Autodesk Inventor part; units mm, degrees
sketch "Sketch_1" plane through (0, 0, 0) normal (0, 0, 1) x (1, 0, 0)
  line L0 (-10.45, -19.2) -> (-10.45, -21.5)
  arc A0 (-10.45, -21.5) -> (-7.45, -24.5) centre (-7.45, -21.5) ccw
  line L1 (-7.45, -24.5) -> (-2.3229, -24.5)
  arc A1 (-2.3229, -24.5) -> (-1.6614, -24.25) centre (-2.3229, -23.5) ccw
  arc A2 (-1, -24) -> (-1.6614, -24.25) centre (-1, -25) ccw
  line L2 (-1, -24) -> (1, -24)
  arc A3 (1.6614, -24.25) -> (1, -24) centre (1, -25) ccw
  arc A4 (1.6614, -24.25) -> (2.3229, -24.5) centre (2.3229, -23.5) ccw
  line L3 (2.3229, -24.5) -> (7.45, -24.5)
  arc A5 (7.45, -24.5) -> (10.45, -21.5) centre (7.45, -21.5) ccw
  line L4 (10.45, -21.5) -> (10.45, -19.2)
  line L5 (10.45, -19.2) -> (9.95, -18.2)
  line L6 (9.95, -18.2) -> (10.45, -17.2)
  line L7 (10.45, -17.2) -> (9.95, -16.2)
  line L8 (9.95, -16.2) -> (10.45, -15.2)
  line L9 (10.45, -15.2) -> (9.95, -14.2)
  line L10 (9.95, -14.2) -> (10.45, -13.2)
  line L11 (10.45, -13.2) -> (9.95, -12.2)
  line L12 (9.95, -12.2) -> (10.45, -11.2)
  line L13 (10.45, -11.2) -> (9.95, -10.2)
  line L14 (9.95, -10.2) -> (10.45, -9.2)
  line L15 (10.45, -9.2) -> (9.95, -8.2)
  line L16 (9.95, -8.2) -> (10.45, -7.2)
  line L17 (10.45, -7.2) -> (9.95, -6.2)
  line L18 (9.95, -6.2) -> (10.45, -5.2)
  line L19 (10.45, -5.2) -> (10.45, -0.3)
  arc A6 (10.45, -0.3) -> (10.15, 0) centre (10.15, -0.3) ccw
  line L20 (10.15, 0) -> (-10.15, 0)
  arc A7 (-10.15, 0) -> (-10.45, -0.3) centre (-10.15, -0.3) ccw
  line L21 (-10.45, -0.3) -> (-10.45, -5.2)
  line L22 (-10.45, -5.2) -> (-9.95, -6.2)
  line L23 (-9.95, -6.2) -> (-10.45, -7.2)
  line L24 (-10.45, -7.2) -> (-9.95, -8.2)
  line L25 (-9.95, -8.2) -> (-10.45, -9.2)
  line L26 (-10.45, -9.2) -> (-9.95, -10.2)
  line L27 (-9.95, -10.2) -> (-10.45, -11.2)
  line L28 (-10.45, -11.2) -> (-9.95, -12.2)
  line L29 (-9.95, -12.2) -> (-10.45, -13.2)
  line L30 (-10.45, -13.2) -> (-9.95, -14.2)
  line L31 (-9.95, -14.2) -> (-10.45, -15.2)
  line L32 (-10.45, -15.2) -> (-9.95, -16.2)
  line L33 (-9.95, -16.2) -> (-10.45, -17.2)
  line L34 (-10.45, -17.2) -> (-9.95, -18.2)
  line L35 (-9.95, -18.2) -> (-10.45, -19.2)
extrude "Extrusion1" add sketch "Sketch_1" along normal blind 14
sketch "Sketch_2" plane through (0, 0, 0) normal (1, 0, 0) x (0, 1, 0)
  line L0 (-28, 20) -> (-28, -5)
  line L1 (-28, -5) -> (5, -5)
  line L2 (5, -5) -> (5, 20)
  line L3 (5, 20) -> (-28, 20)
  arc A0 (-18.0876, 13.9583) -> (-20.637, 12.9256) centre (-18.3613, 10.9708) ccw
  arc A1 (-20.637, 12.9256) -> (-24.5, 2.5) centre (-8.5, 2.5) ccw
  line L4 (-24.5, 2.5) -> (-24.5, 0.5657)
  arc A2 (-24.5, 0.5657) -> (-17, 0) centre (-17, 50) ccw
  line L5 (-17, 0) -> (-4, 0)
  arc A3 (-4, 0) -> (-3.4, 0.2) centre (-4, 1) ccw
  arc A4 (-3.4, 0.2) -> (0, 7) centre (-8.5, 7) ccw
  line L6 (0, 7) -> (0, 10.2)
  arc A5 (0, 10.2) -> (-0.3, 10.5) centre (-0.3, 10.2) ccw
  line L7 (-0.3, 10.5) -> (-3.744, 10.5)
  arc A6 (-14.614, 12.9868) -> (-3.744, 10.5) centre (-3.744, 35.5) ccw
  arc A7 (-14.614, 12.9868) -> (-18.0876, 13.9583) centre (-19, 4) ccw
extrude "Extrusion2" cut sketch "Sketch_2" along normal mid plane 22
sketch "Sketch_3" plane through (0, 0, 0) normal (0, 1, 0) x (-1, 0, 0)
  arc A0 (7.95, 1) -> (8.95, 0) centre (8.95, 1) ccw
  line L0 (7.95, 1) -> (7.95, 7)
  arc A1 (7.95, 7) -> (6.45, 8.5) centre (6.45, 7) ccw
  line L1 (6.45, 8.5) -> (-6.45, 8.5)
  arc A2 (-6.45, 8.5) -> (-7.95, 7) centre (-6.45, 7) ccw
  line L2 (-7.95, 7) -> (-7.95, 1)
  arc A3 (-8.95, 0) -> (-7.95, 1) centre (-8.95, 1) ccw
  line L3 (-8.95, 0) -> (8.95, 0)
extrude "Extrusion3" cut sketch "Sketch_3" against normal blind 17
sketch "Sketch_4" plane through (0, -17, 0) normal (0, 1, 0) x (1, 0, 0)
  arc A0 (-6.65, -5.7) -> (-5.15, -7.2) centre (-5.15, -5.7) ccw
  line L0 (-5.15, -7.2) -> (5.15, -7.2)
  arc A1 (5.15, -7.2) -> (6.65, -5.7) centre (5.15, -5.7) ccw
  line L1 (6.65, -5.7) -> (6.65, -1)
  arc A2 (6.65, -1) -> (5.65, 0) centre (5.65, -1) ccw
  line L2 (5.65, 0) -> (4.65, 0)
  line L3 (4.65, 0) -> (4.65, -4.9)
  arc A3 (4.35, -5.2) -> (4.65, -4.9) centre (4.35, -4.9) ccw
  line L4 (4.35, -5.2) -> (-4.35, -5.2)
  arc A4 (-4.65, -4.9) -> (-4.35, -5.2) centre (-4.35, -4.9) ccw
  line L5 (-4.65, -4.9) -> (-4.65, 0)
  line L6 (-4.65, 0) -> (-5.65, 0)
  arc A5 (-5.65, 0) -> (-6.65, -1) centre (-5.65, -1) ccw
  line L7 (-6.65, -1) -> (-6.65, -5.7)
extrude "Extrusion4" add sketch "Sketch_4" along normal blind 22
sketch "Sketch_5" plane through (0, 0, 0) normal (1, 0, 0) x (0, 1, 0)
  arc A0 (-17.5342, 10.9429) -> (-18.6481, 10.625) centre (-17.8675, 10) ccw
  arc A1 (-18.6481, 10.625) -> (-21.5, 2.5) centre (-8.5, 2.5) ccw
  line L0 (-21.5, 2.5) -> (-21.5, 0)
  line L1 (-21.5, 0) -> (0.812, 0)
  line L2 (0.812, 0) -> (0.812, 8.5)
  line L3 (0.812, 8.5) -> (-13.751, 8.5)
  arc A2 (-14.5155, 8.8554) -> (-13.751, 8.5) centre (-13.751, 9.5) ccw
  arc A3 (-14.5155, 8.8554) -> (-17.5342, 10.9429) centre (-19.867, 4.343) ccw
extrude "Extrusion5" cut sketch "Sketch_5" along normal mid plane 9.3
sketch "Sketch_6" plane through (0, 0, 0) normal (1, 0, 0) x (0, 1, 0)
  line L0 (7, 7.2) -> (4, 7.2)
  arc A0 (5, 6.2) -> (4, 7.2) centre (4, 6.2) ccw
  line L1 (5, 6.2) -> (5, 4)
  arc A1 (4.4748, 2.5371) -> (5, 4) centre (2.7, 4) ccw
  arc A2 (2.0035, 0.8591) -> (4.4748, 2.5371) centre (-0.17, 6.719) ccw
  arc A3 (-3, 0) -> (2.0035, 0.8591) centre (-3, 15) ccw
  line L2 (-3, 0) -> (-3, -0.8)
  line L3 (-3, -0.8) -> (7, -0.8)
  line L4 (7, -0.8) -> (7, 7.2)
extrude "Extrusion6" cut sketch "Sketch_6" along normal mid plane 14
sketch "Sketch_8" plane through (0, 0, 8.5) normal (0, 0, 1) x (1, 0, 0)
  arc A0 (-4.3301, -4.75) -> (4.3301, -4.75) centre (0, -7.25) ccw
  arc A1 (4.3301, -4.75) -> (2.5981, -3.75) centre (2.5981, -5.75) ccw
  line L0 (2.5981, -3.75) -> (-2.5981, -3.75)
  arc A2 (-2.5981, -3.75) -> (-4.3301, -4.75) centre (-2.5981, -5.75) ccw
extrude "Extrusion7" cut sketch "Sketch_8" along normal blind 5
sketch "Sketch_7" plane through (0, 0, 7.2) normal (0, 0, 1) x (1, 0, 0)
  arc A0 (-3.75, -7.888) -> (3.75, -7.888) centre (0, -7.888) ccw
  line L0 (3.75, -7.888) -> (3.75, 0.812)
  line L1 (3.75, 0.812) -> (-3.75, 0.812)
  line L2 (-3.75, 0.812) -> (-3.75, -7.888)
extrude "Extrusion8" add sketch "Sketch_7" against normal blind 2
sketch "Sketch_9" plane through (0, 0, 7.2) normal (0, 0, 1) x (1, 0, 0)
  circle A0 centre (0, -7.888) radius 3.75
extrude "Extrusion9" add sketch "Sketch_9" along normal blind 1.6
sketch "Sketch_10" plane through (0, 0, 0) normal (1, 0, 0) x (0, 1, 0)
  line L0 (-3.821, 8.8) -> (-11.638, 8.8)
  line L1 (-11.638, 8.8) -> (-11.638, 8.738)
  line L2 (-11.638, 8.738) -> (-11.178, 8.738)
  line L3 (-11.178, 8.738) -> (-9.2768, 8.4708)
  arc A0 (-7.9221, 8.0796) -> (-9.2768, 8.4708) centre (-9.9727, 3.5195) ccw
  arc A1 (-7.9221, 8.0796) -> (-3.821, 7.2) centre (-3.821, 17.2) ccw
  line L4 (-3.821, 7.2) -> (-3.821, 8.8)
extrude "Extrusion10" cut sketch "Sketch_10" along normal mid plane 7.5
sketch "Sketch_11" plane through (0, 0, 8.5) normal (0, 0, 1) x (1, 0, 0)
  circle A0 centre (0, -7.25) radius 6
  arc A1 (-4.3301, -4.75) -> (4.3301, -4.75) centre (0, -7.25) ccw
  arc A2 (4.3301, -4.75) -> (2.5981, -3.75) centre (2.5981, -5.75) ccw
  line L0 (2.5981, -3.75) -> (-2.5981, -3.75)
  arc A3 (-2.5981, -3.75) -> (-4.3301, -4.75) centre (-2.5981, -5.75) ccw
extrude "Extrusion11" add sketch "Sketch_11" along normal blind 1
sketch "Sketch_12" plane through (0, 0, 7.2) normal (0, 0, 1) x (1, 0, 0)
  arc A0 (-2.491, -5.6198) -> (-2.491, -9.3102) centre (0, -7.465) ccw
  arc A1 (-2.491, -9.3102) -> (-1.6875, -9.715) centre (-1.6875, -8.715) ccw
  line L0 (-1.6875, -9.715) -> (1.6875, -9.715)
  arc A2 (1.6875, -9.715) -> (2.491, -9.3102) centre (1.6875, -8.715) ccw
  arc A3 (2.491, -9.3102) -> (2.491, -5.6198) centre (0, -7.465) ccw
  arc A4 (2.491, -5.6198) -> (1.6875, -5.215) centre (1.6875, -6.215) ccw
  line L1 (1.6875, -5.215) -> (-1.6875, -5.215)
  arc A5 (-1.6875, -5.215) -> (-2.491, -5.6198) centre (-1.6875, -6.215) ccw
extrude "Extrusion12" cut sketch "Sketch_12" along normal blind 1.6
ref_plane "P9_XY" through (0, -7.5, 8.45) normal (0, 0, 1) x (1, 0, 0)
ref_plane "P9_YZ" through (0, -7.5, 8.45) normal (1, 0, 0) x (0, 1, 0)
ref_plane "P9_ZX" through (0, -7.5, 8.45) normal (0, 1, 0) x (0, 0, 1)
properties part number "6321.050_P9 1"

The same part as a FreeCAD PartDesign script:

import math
import FreeCAD as App
import Part
import Sketcher

V = App.Vector
Q = App.Units.Quantity


def add_polygon(sketch, points):
    """Adds a closed chain of lines whose ends are joined by coincident constraints."""
    first, n = sketch.GeometryCount, len(points)
    for a, b in zip(points, points[1:] + points[:1]):
        sketch.addGeometry(Part.LineSegment(App.Vector(*a, 0), App.Vector(*b, 0)), False)
    for i in range(n):
        sketch.addConstraint(Sketcher.Constraint("Coincident", first + i, 2, first + (i + 1) % n, 1))

doc = App.newDocument("Part")
params = doc.addObject("Spreadsheet::Sheet", "Params")
for row, (alias, value) in enumerate([
    ("sketch1_radius", "3 mm"),
    ("sketch1_radius2", "1 mm"),
    ("sketch1_radius3", "0.3 mm"),
    ("sketch1_width", "2 mm"),
    ("sketch1_width2", "20.3 mm"),
    ("pad1_length", "14 mm"),
    ("sketch2_radius", "3 mm"),
    ("sketch2_radius2", "10 mm"),
    ("sketch2_radius3", "25 mm"),
    ("sketch2_radius4", "1 mm"),
    ("sketch2_radius5", "50 mm"),
    ("pocket1_length", "22 mm"),
    ("sketch3_radius", "1 mm"),
    ("sketch3_radius2", "1.5 mm"),
    ("sketch3_height", "6 mm"),
    ("sketch3_width", "12.9 mm"),
    ("pocket2_length", "17 mm"),
    ("sketch4_radius", "1 mm"),
    ("sketch4_radius2", "1.5 mm"),
    ("sketch4_radius3", "0.3 mm"),
    ("sketch4_width", "1 mm"),
    ("sketch4_width2", "10.3 mm"),
    ("pad2_length", "22 mm"),
    ("sketch5_radius", "7 mm"),
    ("sketch5_radius2", "1 mm"),
    ("sketch5_radius3", "13 mm"),
    ("sketch5_height", "2.5 mm"),
    ("sketch5_height2", "8.5 mm"),
    ("pocket3_length", "9.3 mm"),
    ("sketch6_radius", "1 mm"),
    ("sketch6_radius2", "15 mm"),
    ("sketch6_radius3", "2.3 mm"),
    ("sketch6_width", "3 mm"),
    ("sketch6_width2", "10 mm"),
    ("pocket4_length", "14 mm"),
    ("sketch7_radius", "2 mm"),
    ("sketch7_radius2", "5 mm"),
    ("sketch7_height", "1 mm"),
    ("pocket5_length", "5 mm"),
    ("sketch8_radius", "3.75 mm"),
    ("sketch8_height", "8.7 mm"),
    ("pad3_length", "2 mm"),
    ("sketch9_diameter", "7.5 mm"),
    ("pad4_length", "1.6 mm"),
    ("sketch10_radius", "5 mm"),
    ("sketch10_radius2", "10 mm"),
    ("sketch10_height", "1.6 mm"),
    ("sketch10_width", "0.46 mm"),
    ("sketch10_length", "1.92 mm"),
    ("pocket6_length", "7.5 mm"),
    ("sketch11_diameter", "12 mm"),
    ("sketch11_radius", "5 mm"),
    ("sketch11_radius2", "2 mm"),
    ("pad5_length", "1 mm"),
    ("sketch12_radius", "1 mm"),
    ("sketch12_radius2", "3.1 mm"),
    ("pocket7_length", "1.6 mm"),
], start=1):
    params.set(f"A{row}", alias)
    params.set(f"B{row}", "=" + value)
    params.setAlias(f"B{row}", alias)

body = doc.addObject("PartDesign::Body", "Body")

# Sketch on XY plane
sketch1 = body.newObject("Sketcher::SketchObject", "Sketch")
sketch1.AttachmentSupport = (doc.getObject("XY_Plane"), [""])
sketch1.MapMode = "FlatFace"
sketch1.addGeometry([
    Part.LineSegment(V(-9.95, -18.2, 0), V(-10.45, -19.2, 0)),  # 0
    Part.LineSegment(V(-10.45, -19.2, 0), V(-10.45, -21.5, 0)),  # 1
    Part.ArcOfCircle(Part.Circle(V(-7.45, -21.5, 0), V(0, 0, 1), 3), math.radians(180), math.radians(270)),  # 2
    Part.LineSegment(V(-7.45, -24.5, 0), V(-2.32, -24.5, 0)),  # 3
    Part.ArcOfCircle(Part.Circle(V(-2.32, -23.5, 0), V(0, 0, 1), 1), math.radians(-90), math.radians(-49)),  # 4
    Part.ArcOfCircle(Part.Circle(V(-1, -25, 0), V(0, 0, 1), 1), math.radians(90), math.radians(131)),  # 5
    Part.LineSegment(V(-1, -24, 0), V(1, -24, 0)),  # 6
    Part.ArcOfCircle(Part.Circle(V(1, -25, 0), V(0, 0, 1), 1), math.radians(49), math.radians(90)),  # 7
    Part.ArcOfCircle(Part.Circle(V(2.32, -23.5, 0), V(0, 0, 1), 1), math.radians(-131), math.radians(-90)),  # 8
    Part.LineSegment(V(2.32, -24.5, 0), V(7.45, -24.5, 0)),  # 9
    Part.ArcOfCircle(Part.Circle(V(7.45, -21.5, 0), V(0, 0, 1), 3), math.radians(-90), math.radians(0)),  # 10
    Part.LineSegment(V(10.45, -21.5, 0), V(10.45, -19.2, 0)),  # 11
    Part.LineSegment(V(10.45, -19.2, 0), V(9.95, -18.2, 0)),  # 12
    Part.LineSegment(V(9.95, -18.2, 0), V(10.45, -17.2, 0)),  # 13
    Part.LineSegment(V(10.45, -17.2, 0), V(9.95, -16.2, 0)),  # 14
    Part.LineSegment(V(9.95, -16.2, 0), V(10.45, -15.2, 0)),  # 15
    Part.LineSegment(V(10.45, -15.2, 0), V(9.95, -14.2, 0)),  # 16
    Part.LineSegment(V(9.95, -14.2, 0), V(10.45, -13.2, 0)),  # 17
    Part.LineSegment(V(10.45, -13.2, 0), V(9.95, -12.2, 0)),  # 18
    Part.LineSegment(V(9.95, -12.2, 0), V(10.45, -11.2, 0)),  # 19
    Part.LineSegment(V(10.45, -11.2, 0), V(9.95, -10.2, 0)),  # 20
    Part.LineSegment(V(9.95, -10.2, 0), V(10.45, -9.2, 0)),  # 21
    Part.LineSegment(V(10.45, -9.2, 0), V(9.95, -8.2, 0)),  # 22
    Part.LineSegment(V(9.95, -8.2, 0), V(10.45, -7.2, 0)),  # 23
    Part.LineSegment(V(10.45, -7.2, 0), V(9.95, -6.2, 0)),  # 24
    Part.LineSegment(V(9.95, -6.2, 0), V(10.45, -5.2, 0)),  # 25
    Part.LineSegment(V(10.45, -5.2, 0), V(10.45, -0.3, 0)),  # 26
    Part.ArcOfCircle(Part.Circle(V(10.15, -0.3, 0), V(0, 0, 1), 0.3), math.radians(0), math.radians(90)),  # 27
    Part.LineSegment(V(10.15, 0, 0), V(-10.15, 0, 0)),  # 28
    Part.ArcOfCircle(Part.Circle(V(-10.15, -0.3, 0), V(0, 0, 1), 0.3), math.radians(90), math.radians(180)),  # 29
    Part.LineSegment(V(-10.45, -0.3, 0), V(-10.45, -5.2, 0)),  # 30
    Part.LineSegment(V(-10.45, -5.2, 0), V(-9.95, -6.2, 0)),  # 31
    Part.LineSegment(V(-9.95, -6.2, 0), V(-10.45, -7.2, 0)),  # 32
    Part.LineSegment(V(-10.45, -7.2, 0), V(-9.95, -8.2, 0)),  # 33
    Part.LineSegment(V(-9.95, -8.2, 0), V(-10.45, -9.2, 0)),  # 34
    Part.LineSegment(V(-10.45, -9.2, 0), V(-9.95, -10.2, 0)),  # 35
    Part.LineSegment(V(-9.95, -10.2, 0), V(-10.45, -11.2, 0)),  # 36
    Part.LineSegment(V(-10.45, -11.2, 0), V(-9.95, -12.2, 0)),  # 37
    Part.LineSegment(V(-9.95, -12.2, 0), V(-10.45, -13.2, 0)),  # 38
    Part.LineSegment(V(-10.45, -13.2, 0), V(-9.95, -14.2, 0)),  # 39
    Part.LineSegment(V(-9.95, -14.2, 0), V(-10.45, -15.2, 0)),  # 40
    Part.LineSegment(V(-10.45, -15.2, 0), V(-9.95, -16.2, 0)),  # 41
    Part.LineSegment(V(-9.95, -16.2, 0), V(-10.45, -17.2, 0)),  # 42
    Part.LineSegment(V(-10.45, -17.2, 0), V(-9.95, -18.2, 0)),  # 43
], False)
sketch1.addConstraint([
    Sketcher.Constraint("Coincident", 0, 2, 1, 1),
    Sketcher.Constraint("Tangent", 1, 2, 2, 1),
    Sketcher.Constraint("Tangent", 2, 2, 3, 1),
    Sketcher.Constraint("Tangent", 3, 2, 4, 1),
    Sketcher.Constraint("Tangent", 4, 2, 5, 2),
    Sketcher.Constraint("Tangent", 5, 1, 6, 1),
    Sketcher.Constraint("Tangent", 6, 2, 7, 2),
    Sketcher.Constraint("Tangent", 7, 1, 8, 1),
    Sketcher.Constraint("Tangent", 8, 2, 9, 1),
    Sketcher.Constraint("Tangent", 9, 2, 10, 1),
    Sketcher.Constraint("Tangent", 10, 2, 11, 1),
    Sketcher.Constraint("Coincident", 11, 2, 12, 1),
    Sketcher.Constraint("Coincident", 12, 2, 13, 1),
    Sketcher.Constraint("Coincident", 13, 2, 14, 1),
    Sketcher.Constraint("Coincident", 14, 2, 15, 1),
    Sketcher.Constraint("Coincident", 15, 2, 16, 1),
    Sketcher.Constraint("Coincident", 16, 2, 17, 1),
    Sketcher.Constraint("Coincident", 17, 2, 18, 1),
    Sketcher.Constraint("Coincident", 18, 2, 19, 1),
    Sketcher.Constraint("Coincident", 19, 2, 20, 1),
    Sketcher.Constraint("Coincident", 20, 2, 21, 1),
    Sketcher.Constraint("Coincident", 21, 2, 22, 1),
    Sketcher.Constraint("Coincident", 22, 2, 23, 1),
    Sketcher.Constraint("Coincident", 23, 2, 24, 1),
    Sketcher.Constraint("Coincident", 24, 2, 25, 1),
    Sketcher.Constraint("Coincident", 25, 2, 26, 1),
    Sketcher.Constraint("Tangent", 26, 2, 27, 1),
    Sketcher.Constraint("Tangent", 27, 2, 28, 1),
    Sketcher.Constraint("Tangent", 28, 2, 29, 1),
    Sketcher.Constraint("Tangent", 29, 2, 30, 1),
    Sketcher.Constraint("Coincident", 30, 2, 31, 1),
    Sketcher.Constraint("Coincident", 31, 2, 32, 1),
    Sketcher.Constraint("Coincident", 32, 2, 33, 1),
    Sketcher.Constraint("Coincident", 33, 2, 34, 1),
    Sketcher.Constraint("Coincident", 34, 2, 35, 1),
    Sketcher.Constraint("Coincident", 35, 2, 36, 1),
    Sketcher.Constraint("Coincident", 36, 2, 37, 1),
    Sketcher.Constraint("Coincident", 37, 2, 38, 1),
    Sketcher.Constraint("Coincident", 38, 2, 39, 1),
    Sketcher.Constraint("Coincident", 39, 2, 40, 1),
    Sketcher.Constraint("Coincident", 40, 2, 41, 1),
    Sketcher.Constraint("Coincident", 41, 2, 42, 1),
    Sketcher.Constraint("Coincident", 42, 2, 43, 1),
    Sketcher.Constraint("Coincident", 43, 2, 0, 1),
    Sketcher.Constraint("Vertical", 1),
    Sketcher.Constraint("Horizontal", 3),
    Sketcher.Constraint("Horizontal", 6),
    Sketcher.Constraint("Horizontal", 9),
    Sketcher.Constraint("Vertical", 11),
    Sketcher.Constraint("Vertical", 26),
    Sketcher.Constraint("Horizontal", 28),
    Sketcher.Constraint("Vertical", 30),
    Sketcher.Constraint("Equal", 4, 5),
    Sketcher.Constraint("Equal", 5, 7),
    Sketcher.Constraint("Equal", 7, 8),
    Sketcher.Constraint("Equal", 2, 10),
    Sketcher.Constraint("Equal", 27, 29),
    Sketcher.Constraint("Symmetric", 27, 2, 28, 2, -1, 1),
    Sketcher.Constraint("Symmetric", 4, 3, 8, 3, -2),
    Sketcher.Constraint("Symmetric", 0, 2, 11, 2, -2),
    Sketcher.Constraint("Symmetric", 24, 2, 31, 2, -2),
    Sketcher.Constraint("Symmetric", 23, 2, 32, 2, -2),
    Sketcher.Constraint("Symmetric", 22, 2, 33, 2, -2),
    Sketcher.Constraint("Symmetric", 21, 2, 34, 2, -2),
    Sketcher.Constraint("Symmetric", 20, 2, 35, 2, -2),
    Sketcher.Constraint("Symmetric", 19, 2, 36, 2, -2),
    Sketcher.Constraint("Symmetric", 18, 2, 37, 2, -2),
    Sketcher.Constraint("Symmetric", 17, 2, 38, 2, -2),
    Sketcher.Constraint("Symmetric", 16, 2, 39, 2, -2),
    Sketcher.Constraint("Symmetric", 15, 2, 40, 2, -2),
    Sketcher.Constraint("Symmetric", 14, 2, 41, 2, -2),
    Sketcher.Constraint("Symmetric", 13, 2, 42, 2, -2),
    Sketcher.Constraint("Symmetric", 12, 2, 43, 2, -2),
    Sketcher.Constraint("Parallel", 0, 13),
    Sketcher.Constraint("Parallel", 12, 14),
    Sketcher.Constraint("Parallel", 13, 15),
    Sketcher.Constraint("Parallel", 14, 16),
    Sketcher.Constraint("Parallel", 15, 17),
    Sketcher.Constraint("Parallel", 16, 18),
    Sketcher.Constraint("Parallel", 17, 19),
    Sketcher.Constraint("Parallel", 18, 20),
    Sketcher.Constraint("Parallel", 19, 21),
    Sketcher.Constraint("Parallel", 20, 22),
    Sketcher.Constraint("Parallel", 21, 23),
    Sketcher.Constraint("Parallel", 22, 24),
    Sketcher.Constraint("Parallel", 23, 25),
    Sketcher.Constraint("Parallel", 24, 31),
    Sketcher.Constraint("Vertical", 11, 2, 13, 2),
    Sketcher.Constraint("Vertical", 12, 2, 14, 2),
    Sketcher.Constraint("Vertical", 13, 2, 15, 2),
    Sketcher.Constraint("Vertical", 14, 2, 16, 2),
    Sketcher.Constraint("Vertical", 15, 2, 17, 2),
    Sketcher.Constraint("Vertical", 16, 2, 18, 2),
    Sketcher.Constraint("Vertical", 17, 2, 19, 2),
    Sketcher.Constraint("Vertical", 18, 2, 20, 2),
    Sketcher.Constraint("Vertical", 19, 2, 21, 2),
    Sketcher.Constraint("Vertical", 20, 2, 22, 2),
    Sketcher.Constraint("Vertical", 21, 2, 23, 2),
    Sketcher.Constraint("Vertical", 22, 2, 24, 2),
    Sketcher.Constraint("Vertical", 23, 2, 25, 2),
    Sketcher.Constraint("Radius", 2, 3.0),
    Sketcher.Constraint("Radius", 4, 1.0),
    Sketcher.Constraint("Radius", 27, 0.3),
    Sketcher.Constraint("DistanceX", 6, 1, 6, 2, 2.0),
    Sketcher.Constraint("DistanceX", 28, 2, 28, 1, 20.3),
    Sketcher.Constraint("DistanceY", 1, 2, 1, 1, 2.3),
    Sketcher.Constraint("DistanceY", 26, 1, 26, 2, 4.9),
    Sketcher.Constraint("DistanceY", 5, 3, -1, 1, 25.0),
    Sketcher.Constraint("DistanceY", 11, 2, 12, 2, 1.0),
    Sketcher.Constraint("DistanceX", 12, 2, 11, 2, 0.5),
])
sketch1.setExpression("Constraints[100]", "Params.sketch1_radius")
sketch1.setExpression("Constraints[101]", "Params.sketch1_radius2")
sketch1.setExpression("Constraints[102]", "Params.sketch1_radius3")
sketch1.setExpression("Constraints[103]", "Params.sketch1_width")
sketch1.setExpression("Constraints[104]", "Params.sketch1_width2")
pad1 = body.newObject("PartDesign::Pad", "Pad")
pad1.Profile = sketch1
pad1.setExpression("Length", "Params.pad1_length")

# Sketch on YZ plane
sketch2 = body.newObject("Sketcher::SketchObject", "Sketch001")
sketch2.AttachmentSupport = (doc.getObject("YZ_Plane"), [""])
sketch2.MapMode = "FlatFace"
add_polygon(sketch2, [(5, 20), (-28, 20), (-28, -5), (5, -5)])  # lines 0-3
sketch2.addGeometry(Part.ArcOfCircle(Part.Circle(V(-18.3613, 10.9708, 0), V(0, 0, 1), 3.000011), math.radians(84.765456), math.radians(139.337802)), False)  # 4
sketch2.addGeometry(Part.ArcOfCircle(Part.Circle(V(-19, 4, 0), V(0, 0, 1), 9.999979), math.radians(63.98535), math.radians(84.765058)), False)  # 5
sketch2.addGeometry(Part.ArcOfCircle(Part.Circle(V(-3.744, 35.5, 0), V(0, 0, 1), 25.000021), math.radians(-115.772544), math.radians(-90)), False)  # 6
sketch2.addGeometry(Part.LineSegment(V(-3.744, 10.5, 0), V(-0.3, 10.5, 0)), False)  # 7
sketch2.addGeometry(Part.ArcOfCircle(Part.Circle(V(-0.3, 10.2, 0), V(0, 0, 1), 0.3), math.radians(0), math.radians(90)), False)  # 8
sketch2.addGeometry(Part.LineSegment(V(0, 10.2, 0), V(0, 7, 0)), False)  # 9
sketch2.addGeometry(Part.ArcOfCircle(Part.Circle(V(-8.5, 7, 0), V(0, 0, 1), 8.5), math.radians(-53.130102), math.radians(0)), False)  # 10
sketch2.addGeometry(Part.ArcOfCircle(Part.Circle(V(-4, 1, 0), V(0, 0, 1), 1), math.radians(-90), math.radians(-53.130102)), False)  # 11
sketch2.addGeometry(Part.LineSegment(V(-4, 0, 0), V(-17, 0, 0)), False)  # 12
sketch2.addGeometry(Part.ArcOfCircle(Part.Circle(V(-17, 50, 0), V(0, 0, 1), 50), math.radians(-98.626927), math.radians(-90)), False)  # 13
sketch2.addGeometry(Part.LineSegment(V(-24.5, 0.5657, 0), V(-24.5, 2.5, 0)), False)  # 14
sketch2.addGeometry(Part.ArcOfCircle(Part.Circle(V(-8.5, 2.5, 0), V(0, 0, 1), 15.999997), math.radians(139.337647), math.radians(180)), False)  # 15
sketch2.addConstraint([
    Sketcher.Constraint("Tangent", 4, 1, 5, 2),
    Sketcher.Constraint("Coincident", 5, 1, 6, 1),
    Sketcher.Constraint("Tangent", 6, 2, 7, 1),
    Sketcher.Constraint("Tangent", 7, 2, 8, 2),
    Sketcher.Constraint("Tangent", 8, 1, 9, 1),
    Sketcher.Constraint("Tangent", 9, 2, 10, 2),
    Sketcher.Constraint("Tangent", 10, 1, 11, 2),
    Sketcher.Constraint("Tangent", 11, 1, 12, 1),
    Sketcher.Constraint("Tangent", 12, 2, 13, 2),
    Sketcher.Constraint("Coincident", 13, 1, 14, 1),
    Sketcher.Constraint("Tangent", 14, 2, 15, 2),
    Sketcher.Constraint("Tangent", 15, 1, 4, 2),
    Sketcher.Constraint("Horizontal", 0),
    Sketcher.Constraint("Vertical", 1),
    Sketcher.Constraint("Horizontal", 2),
    Sketcher.Constraint("Vertical", 3),
    Sketcher.Constraint("Horizontal", 7),
    Sketcher.Constraint("Vertical", 9),
    Sketcher.Constraint("Horizontal", 12),
    Sketcher.Constraint("Vertical", 14),
    Sketcher.Constraint("PointOnObject", 8, 1, -2),
    Sketcher.Constraint("PointOnObject", 11, 1, -1),
    Sketcher.Constraint("Vertical", 10, 3, 15, 3),
    Sketcher.Constraint("Radius", 4, 3.0),
    Sketcher.Constraint("Radius", 5, 10.0),
    Sketcher.Constraint("Radius", 6, 25.0),
    Sketcher.Constraint("Radius", 11, 1.0),
    Sketcher.Constraint("Radius", 13, 50.0),
    Sketcher.Constraint("Radius", 15, 16.0),
    Sketcher.Constraint("Radius", 8, 0.3),
    Sketcher.Constraint("Radius", 10, 8.5),
    Sketcher.Constraint("DistanceX", 0, 2, 0, 1, 33.0),
    Sketcher.Constraint("DistanceX", 12, 2, 12, 1, 13.0),
    Sketcher.Constraint("DistanceY", 1, 2, 1, 1, 25.0),
    Sketcher.Constraint("DistanceY", 9, 2, 9, 1, 3.2),
    Sketcher.Constraint("DistanceX", 5, 3, -1, 1, 19.0),
    Sketcher.Constraint("DistanceY", -1, 1, 5, 3, 4.0),
    Sketcher.Constraint("DistanceY", -1, 1, 10, 3, 7.0),
    Sketcher.Constraint("DistanceX", 0, 2, -1, 1, 28.0),
    Sketcher.Constraint("DistanceY", -1, 1, 0, 2, 20.0),
    Sketcher.Constraint("DistanceY", 15, 3, 6, 2, 8.0),
    Sketcher.Constraint("DistanceX", 7, 1, 7, 2, 3.444),
])
sketch2.setExpression("Constraints[27]", "Params.sketch2_radius")
sketch2.setExpression("Constraints[28]", "Params.sketch2_radius2")
sketch2.setExpression("Constraints[29]", "Params.sketch2_radius3")
sketch2.setExpression("Constraints[30]", "Params.sketch2_radius4")
sketch2.setExpression("Constraints[31]", "Params.sketch2_radius5")
pocket1 = body.newObject("PartDesign::Pocket", "Pocket")
pocket1.Profile = sketch2
pocket1.setExpression("Length", "Params.pocket1_length")
pocket1.Midplane = True

# Sketch on XZ plane
sketch3 = body.newObject("Sketcher::SketchObject", "Sketch002")
sketch3.AttachmentSupport = (doc.getObject("XZ_Plane"), [""])
sketch3.MapMode = "FlatFace"
sketch3.addGeometry([
    Part.ArcOfCircle(Part.Circle(V(-8.9, 1, 0), V(0, 0, 1), 1), math.radians(-90), math.radians(0)),  # 0
    Part.LineSegment(V(-8, 1, 0), V(-8, 7, 0)),  # 1
    Part.ArcOfCircle(Part.Circle(V(-6.5, 7, 0), V(0, 0, 1), 1.5), math.radians(90), math.radians(180)),  # 2
    Part.LineSegment(V(-6.5, 8.5, 0), V(6.5, 8.5, 0)),  # 3
    Part.ArcOfCircle(Part.Circle(V(6.5, 7, 0), V(0, 0, 1), 1.5), math.radians(0), math.radians(90)),  # 4
    Part.LineSegment(V(8, 7, 0), V(8, 1, 0)),  # 5
    Part.ArcOfCircle(Part.Circle(V(8.9, 1, 0), V(0, 0, 1), 1), math.radians(180), math.radians(270)),  # 6
    Part.LineSegment(V(8.9, 0, 0), V(-8.9, 0, 0)),  # 7
], False)
sketch3.addConstraint([
    Sketcher.Constraint("Tangent", 0, 2, 1, 1),
    Sketcher.Constraint("Tangent", 1, 2, 2, 2),
    Sketcher.Constraint("Tangent", 2, 1, 3, 1),
    Sketcher.Constraint("Tangent", 3, 2, 4, 2),
    Sketcher.Constraint("Tangent", 4, 1, 5, 1),
    Sketcher.Constraint("Tangent", 5, 2, 6, 1),
    Sketcher.Constraint("Tangent", 6, 2, 7, 1),
    Sketcher.Constraint("Tangent", 7, 2, 0, 1),
    Sketcher.Constraint("Vertical", 1),
    Sketcher.Constraint("Horizontal", 3),
    Sketcher.Constraint("Vertical", 5),
    Sketcher.Constraint("Horizontal", 7),
    Sketcher.Constraint("Equal", 2, 4),
    Sketcher.Constraint("Equal", 0, 6),
    Sketcher.Constraint("Symmetric", 6, 2, 7, 2, -1, 1),
    Sketcher.Constraint("Radius", 0, 1.0),
    Sketcher.Constraint("Radius", 2, 1.5),
    Sketcher.Constraint("DistanceY", 1, 1, 1, 2, 6.0),
    Sketcher.Constraint("DistanceX", 3, 1, 3, 2, 12.9),
])
sketch3.setExpression("Constraints[15]", "Params.sketch3_radius")
sketch3.setExpression("Constraints[16]", "Params.sketch3_radius2")
sketch3.setExpression("Constraints[17]", "Params.sketch3_height")
sketch3.setExpression("Constraints[18]", "Params.sketch3_width")
pocket2 = body.newObject("PartDesign::Pocket", "Pocket001")
pocket2.Profile = sketch3
pocket2.setExpression("Length", "Params.pocket2_length")
pocket2.Reversed = True

# Sketch on XZ plane
sketch4 = body.newObject("Sketcher::SketchObject", "Sketch003")
sketch4.AttachmentSupport = (doc.getObject("XZ_Plane"), [""])
sketch4.MapMode = "FlatFace"
sketch4.AttachmentOffset = App.Placement(V(0, 0, 17), App.Rotation())
sketch4.addGeometry([
    Part.LineSegment(V(-6.65, 1, 0), V(-6.65, 5.7, 0)),  # 0
    Part.ArcOfCircle(Part.Circle(V(-5.15, 5.7, 0), V(0, 0, 1), 1.5), math.radians(90), math.radians(180)),  # 1
    Part.LineSegment(V(-5.15, 7.2, 0), V(5.15, 7.2, 0)),  # 2
    Part.ArcOfCircle(Part.Circle(V(5.15, 5.7, 0), V(0, 0, 1), 1.5), math.radians(0), math.radians(90)),  # 3
    Part.LineSegment(V(6.65, 5.7, 0), V(6.65, 1, 0)),  # 4
    Part.ArcOfCircle(Part.Circle(V(5.65, 1, 0), V(0, 0, 1), 1), math.radians(-90), math.radians(0)),  # 5
    Part.LineSegment(V(5.65, 0, 0), V(4.65, 0, 0)),  # 6
    Part.LineSegment(V(4.65, 0, 0), V(4.65, 4.9, 0)),  # 7
    Part.ArcOfCircle(Part.Circle(V(4.35, 4.9, 0), V(0, 0, 1), 0.3), math.radians(0), math.radians(90)),  # 8
    Part.LineSegment(V(4.35, 5.2, 0), V(-4.35, 5.2, 0)),  # 9
    Part.ArcOfCircle(Part.Circle(V(-4.35, 4.9, 0), V(0, 0, 1), 0.3), math.radians(90), math.radians(180)),  # 10
    Part.LineSegment(V(-4.65, 4.9, 0), V(-4.65, 0, 0)),  # 11
    Part.LineSegment(V(-4.65, 0, 0), V(-5.65, 0, 0)),  # 12
    Part.ArcOfCircle(Part.Circle(V(-5.65, 1, 0), V(0, 0, 1), 1), math.radians(180), math.radians(270)),  # 13
], False)
sketch4.addConstraint([
    Sketcher.Constraint("Tangent", 0, 2, 1, 2),
    Sketcher.Constraint("Tangent", 1, 1, 2, 1),
    Sketcher.Constraint("Tangent", 2, 2, 3, 2),
    Sketcher.Constraint("Tangent", 3, 1, 4, 1),
    Sketcher.Constraint("Tangent", 4, 2, 5, 2),
    Sketcher.Constraint("Tangent", 5, 1, 6, 1),
    Sketcher.Constraint("Coincident", 6, 2, 7, 1),
    Sketcher.Constraint("Tangent", 7, 2, 8, 1),
    Sketcher.Constraint("Tangent", 8, 2, 9, 1),
    Sketcher.Constraint("Tangent", 9, 2, 10, 1),
    Sketcher.Constraint("Tangent", 10, 2, 11, 1),
    Sketcher.Constraint("Coincident", 11, 2, 12, 1),
    Sketcher.Constraint("Tangent", 12, 2, 13, 2),
    Sketcher.Constraint("Tangent", 13, 1, 0, 1),
    Sketcher.Constraint("Vertical", 0),
    Sketcher.Constraint("Horizontal", 2),
    Sketcher.Constraint("Vertical", 4),
    Sketcher.Constraint("Horizontal", 6),
    Sketcher.Constraint("Vertical", 7),
    Sketcher.Constraint("Horizontal", 9),
    Sketcher.Constraint("Vertical", 11),
    Sketcher.Constraint("Horizontal", 12),
    Sketcher.Constraint("Equal", 1, 3),
    Sketcher.Constraint("Equal", 8, 10),
    Sketcher.Constraint("Equal", 5, 13),
    Sketcher.Constraint("Symmetric", 6, 2, 11, 2, -1, 1),
    Sketcher.Constraint("Symmetric", 5, 3, 13, 3, -2),
    Sketcher.Constraint("Radius", 5, 1.0),
    Sketcher.Constraint("Radius", 1, 1.5),
    Sketcher.Constraint("Radius", 8, 0.3),
    Sketcher.Constraint("DistanceX", 6, 2, 6, 1, 1.0),
    Sketcher.Constraint("DistanceX", 2, 1, 2, 2, 10.3),
    Sketcher.Constraint("DistanceY", 0, 1, 0, 2, 4.7),
    Sketcher.Constraint("DistanceY", 7, 1, 7, 2, 4.9),
])
sketch4.setExpression("Constraints[27]", "Params.sketch4_radius")
sketch4.setExpression("Constraints[28]", "Params.sketch4_radius2")
sketch4.setExpression("Constraints[29]", "Params.sketch4_radius3")
sketch4.setExpression("Constraints[30]", "Params.sketch4_width")
sketch4.setExpression("Constraints[31]", "Params.sketch4_width2")
pad2 = body.newObject("PartDesign::Pad", "Pad001")
pad2.Profile = sketch4
pad2.setExpression("Length", "Params.pad2_length")
pad2.Reversed = True

# Sketch on YZ plane
sketch5 = body.newObject("Sketcher::SketchObject", "Sketch004")
sketch5.AttachmentSupport = (doc.getObject("YZ_Plane"), [""])
sketch5.MapMode = "FlatFace"
sketch5.addGeometry([
    Part.ArcOfCircle(Part.Circle(V(-19.9, 4.3, 0), V(0, 0, 1), 7), math.radians(40), math.radians(71)),  # 0
    Part.ArcOfCircle(Part.Circle(V(-17.9, 10, 0), V(0, 0, 1), 1), math.radians(71), math.radians(141)),  # 1
    Part.ArcOfCircle(Part.Circle(V(-8.5, 2.5, 0), V(0, 0, 1), 13), math.radians(141), math.radians(180)),  # 2
    Part.LineSegment(V(-21.5, 2.5, 0), V(-21.5, 0, 0)),  # 3
    Part.LineSegment(V(-21.5, 0, 0), V(0.8, 0, 0)),  # 4
    Part.LineSegment(V(0.8, 0, 0), V(0.8, 8.5, 0)),  # 5
    Part.LineSegment(V(0.8, 8.5, 0), V(-13.8, 8.5, 0)),  # 6
    Part.ArcOfCircle(Part.Circle(V(-13.8, 9.5, 0), V(0, 0, 1), 1), math.radians(-140), math.radians(-90)),  # 7
], False)
sketch5.addConstraint([
    Sketcher.Constraint("Tangent", 0, 2, 1, 1),
    Sketcher.Constraint("Tangent", 1, 2, 2, 1),
    Sketcher.Constraint("Tangent", 2, 2, 3, 1),
    Sketcher.Constraint("Coincident", 3, 2, 4, 1),
    Sketcher.Constraint("Coincident", 4, 2, 5, 1),
    Sketcher.Constraint("Coincident", 5, 2, 6, 1),
    Sketcher.Constraint("Tangent", 6, 2, 7, 2),
    Sketcher.Constraint("Tangent", 7, 1, 0, 1),
    Sketcher.Constraint("Vertical", 3),
    Sketcher.Constraint("Horizontal", 4),
    Sketcher.Constraint("Vertical", 5),
    Sketcher.Constraint("Horizontal", 6),
    Sketcher.Constraint("Equal", 1, 7),
    Sketcher.Constraint("PointOnObject", 3, 2, -1),
    Sketcher.Constraint("Radius", 0, 7.0),
    Sketcher.Constraint("Radius", 1, 1.0),
    Sketcher.Constraint("Radius", 2, 13.0),
    Sketcher.Constraint("DistanceY", 3, 2, 3, 1, 2.5),
    Sketcher.Constraint("DistanceY", 5, 1, 5, 2, 8.5),
    Sketcher.Constraint("DistanceY", -1, 1, 1, 3, 10.0),
    Sketcher.Constraint("DistanceX", 2, 3, -1, 1, 8.5),
    Sketcher.Constraint("DistanceX", 4, 1, 4, 2, 22.312),
    Sketcher.Constraint("DistanceX", 6, 2, 6, 1, 14.563),
])
sketch5.setExpression("Constraints[14]", "Params.sketch5_radius")
sketch5.setExpression("Constraints[15]", "Params.sketch5_radius2")
sketch5.setExpression("Constraints[16]", "Params.sketch5_radius3")
sketch5.setExpression("Constraints[17]", "Params.sketch5_height")
sketch5.setExpression("Constraints[18]", "Params.sketch5_height2")
pocket3 = body.newObject("PartDesign::Pocket", "Pocket002")
pocket3.Profile = sketch5
pocket3.setExpression("Length", "Params.pocket3_length")
pocket3.Midplane = True

# Sketch on YZ plane
sketch6 = body.newObject("Sketcher::SketchObject", "Sketch005")
sketch6.AttachmentSupport = (doc.getObject("YZ_Plane"), [""])
sketch6.MapMode = "FlatFace"
sketch6.addGeometry([
    Part.LineSegment(V(7, -0.8, 0), V(7, 7.2, 0)),  # 0
    Part.LineSegment(V(7, 7.2, 0), V(4, 7.2, 0)),  # 1
    Part.ArcOfCircle(Part.Circle(V(4, 6.2, 0), V(0, 0, 1), 1), math.radians(0), math.radians(90)),  # 2
    Part.LineSegment(V(5, 6.2, 0), V(5, 4, 0)),  # 3
    Part.ArcOfCircle(Part.Circle(V(2.7, 4, 0), V(0, 0, 1), 2.3), math.radians(-39), math.radians(0)),  # 4
    Part.ArcOfCircle(Part.Circle(V(-0.2, 6.7, 0), V(0, 0, 1), 6.3), math.radians(-70), math.radians(-42)),  # 5
    Part.ArcOfCircle(Part.Circle(V(-3, 15, 0), V(0, 0, 1), 15), math.radians(-90), math.radians(-70.51)),  # 6
    Part.LineSegment(V(-3, 0, 0), V(-3, -0.8, 0)),  # 7
    Part.LineSegment(V(-3, -0.8, 0), V(7, -0.8, 0)),  # 8
], False)
sketch6.addConstraint([
    Sketcher.Constraint("Coincident", 0, 2, 1, 1),
    Sketcher.Constraint("Tangent", 1, 2, 2, 2),
    Sketcher.Constraint("Tangent", 2, 1, 3, 1),
    Sketcher.Constraint("Tangent", 3, 2, 4, 2),
    Sketcher.Constraint("Coincident", 4, 1, 5, 2),
    Sketcher.Constraint("Coincident", 5, 1, 6, 2),
    Sketcher.Constraint("Coincident", 6, 1, 7, 1),
    Sketcher.Constraint("Coincident", 7, 2, 8, 1),
    Sketcher.Constraint("Coincident", 8, 2, 0, 1),
    Sketcher.Constraint("Vertical", 0),
    Sketcher.Constraint("Horizontal", 1),
    Sketcher.Constraint("Vertical", 3),
    Sketcher.Constraint("Vertical", 7),
    Sketcher.Constraint("Horizontal", 8),
    Sketcher.Constraint("PointOnObject", 6, 1, -1),
    Sketcher.Constraint("Radius", 2, 1.0),
    Sketcher.Constraint("Radius", 6, 15.0),
    Sketcher.Constraint("Radius", 4, 2.3),
    Sketcher.Constraint("DistanceX", 1, 2, 1, 1, 3.0),
    Sketcher.Constraint("DistanceX", 8, 1, 8, 2, 10.0),
    Sketcher.Constraint("DistanceY", 0, 1, 0, 2, 8.0),
    Sketcher.Constraint("Radius", 5, 6.25),
    Sketcher.Constraint("DistanceY", 3, 2, 3, 1, 2.2),
    Sketcher.Constraint("DistanceY", 7, 2, 7, 1, 0.8),
    Sketcher.Constraint("DistanceX", -1, 1, 2, 3, 4.0),
    Sketcher.Constraint("DistanceX", 6, 3, -1, 1, 3.0),
    Sketcher.Constraint("DistanceX", 5, 3, -1, 1, 0.17),
    Sketcher.Constraint("DistanceY", -1, 1, 5, 3, 6.719),
])
sketch6.setExpression("Constraints[15]", "Params.sketch6_radius")
sketch6.setExpression("Constraints[16]", "Params.sketch6_radius2")
sketch6.setExpression("Constraints[17]", "Params.sketch6_radius3")
sketch6.setExpression("Constraints[18]", "Params.sketch6_width")
sketch6.setExpression("Constraints[19]", "Params.sketch6_width2")
pocket4 = body.newObject("PartDesign::Pocket", "Pocket003")
pocket4.Profile = sketch6
pocket4.setExpression("Length", "Params.pocket4_length")
pocket4.Midplane = True

# Sketch on XY plane
sketch7 = body.newObject("Sketcher::SketchObject", "Sketch006")
sketch7.AttachmentSupport = (doc.getObject("XY_Plane"), [""])
sketch7.MapMode = "FlatFace"
sketch7.AttachmentOffset = App.Placement(V(0, 0, 8.5), App.Rotation())
sketch7.addGeometry([
    Part.ArcOfCircle(Part.Circle(V(-2.6, -5.8, 0), V(0, 0, 1), 2), math.radians(90), math.radians(150)),
    Part.ArcOfCircle(Part.Circle(V(0, -7.2, 0), V(0, 0, 1), 5), math.radians(150), math.radians(390)),
    Part.ArcOfCircle(Part.Circle(V(2.6, -5.8, 0), V(0, 0, 1), 2), math.radians(30), math.radians(90)),
    Part.LineSegment(V(2.6, -3.8, 0), V(-2.6, -3.8, 0)),
], False)
sketch7.addConstraint([
    Sketcher.Constraint("Tangent", 0, 2, 1, 1),
    Sketcher.Constraint("Tangent", 1, 2, 2, 1),
    Sketcher.Constraint("Tangent", 2, 2, 3, 1),
    Sketcher.Constraint("Tangent", 3, 2, 0, 1),
    Sketcher.Constraint("Horizontal", 3),
    Sketcher.Constraint("Equal", 0, 2),
    Sketcher.Constraint("PointOnObject", 1, 3, -2),
    Sketcher.Constraint("Radius", 0, 2.0),
    Sketcher.Constraint("Radius", 1, 5.0),
    Sketcher.Constraint("DistanceY", 0, 3, 0, 2, 1.0),
    Sketcher.Constraint("DistanceY", 0, 3, -1, 1, 5.75),
])
sketch7.setExpression("Constraints[7]", "Params.sketch7_radius")
sketch7.setExpression("Constraints[8]", "Params.sketch7_radius2")
sketch7.setExpression("Constraints[9]", "Params.sketch7_height")
pocket5 = body.newObject("PartDesign::Pocket", "Pocket004")
pocket5.Profile = sketch7
pocket5.setExpression("Length", "Params.pocket5_length")
pocket5.Reversed = True

# Sketch on XY plane
sketch8 = body.newObject("Sketcher::SketchObject", "Sketch007")
sketch8.AttachmentSupport = (doc.getObject("XY_Plane"), [""])
sketch8.MapMode = "FlatFace"
sketch8.AttachmentOffset = App.Placement(V(0, 0, 7.2), App.Rotation())
sketch8.addGeometry([
    Part.LineSegment(V(-3.8, 0.8, 0), V(-3.8, -7.9, 0)),
    Part.ArcOfCircle(Part.Circle(V(0, -7.9, 0), V(0, 0, 1), 3.8), math.radians(180), math.radians(360)),
    Part.LineSegment(V(3.8, -7.9, 0), V(3.8, 0.8, 0)),
    Part.LineSegment(V(3.8, 0.8, 0), V(-3.8, 0.8, 0)),
], False)
sketch8.addConstraint([
    Sketcher.Constraint("Tangent", 0, 2, 1, 1),
    Sketcher.Constraint("Tangent", 1, 2, 2, 1),
    Sketcher.Constraint("Coincident", 2, 2, 3, 1),
    Sketcher.Constraint("Coincident", 3, 2, 0, 1),
    Sketcher.Constraint("Vertical", 0),
    Sketcher.Constraint("Vertical", 2),
    Sketcher.Constraint("Horizontal", 3),
    Sketcher.Constraint("PointOnObject", 1, 3, -2),
    Sketcher.Constraint("Radius", 1, 3.75),
    Sketcher.Constraint("DistanceY", 0, 2, 0, 1, 8.7),
    Sketcher.Constraint("DistanceY", 1, 3, -1, 1, 7.888),
])
sketch8.setExpression("Constraints[8]", "Params.sketch8_radius")
sketch8.setExpression("Constraints[9]", "Params.sketch8_height")
pad3 = body.newObject("PartDesign::Pad", "Pad002")
pad3.Profile = sketch8
pad3.setExpression("Length", "Params.pad3_length")
pad3.Reversed = True

# Sketch on XY plane
sketch9 = body.newObject("Sketcher::SketchObject", "Sketch008")
sketch9.AttachmentSupport = (doc.getObject("XY_Plane"), [""])
sketch9.MapMode = "FlatFace"
sketch9.AttachmentOffset = App.Placement(V(0, 0, 7.2), App.Rotation())
sketch9.addGeometry(Part.Circle(V(0, -7.9, 0), V(0, 0, 1), 3.8), False)
sketch9.addConstraint([
    Sketcher.Constraint("PointOnObject", 0, 3, -2),
    Sketcher.Constraint("Diameter", 0, 7.5),
    Sketcher.Constraint("DistanceY", 0, 3, -1, 1, 7.888),
])
sketch9.setExpression("Constraints[1]", "Params.sketch9_diameter")
pad4 = body.newObject("PartDesign::Pad", "Pad003")
pad4.Profile = sketch9
pad4.setExpression("Length", "Params.pad4_length")

# Sketch on YZ plane
sketch10 = body.newObject("Sketcher::SketchObject", "Sketch009")
sketch10.AttachmentSupport = (doc.getObject("YZ_Plane"), [""])
sketch10.MapMode = "FlatFace"
sketch10.addGeometry([
    Part.LineSegment(V(-3.82, 7.2, 0), V(-3.82, 8.8, 0)),  # 0
    Part.LineSegment(V(-3.82, 8.8, 0), V(-11.64, 8.8, 0)),  # 1
    Part.LineSegment(V(-11.64, 8.8, 0), V(-11.64, 8.74, 0)),  # 2
    Part.LineSegment(V(-11.64, 8.74, 0), V(-11.18, 8.74, 0)),  # 3
    Part.LineSegment(V(-11.18, 8.74, 0), V(-9.28, 8.47, 0)),  # 4
    Part.ArcOfCircle(Part.Circle(V(-9.97, 3.52, 0), V(0, 0, 1), 5), math.radians(65.79), math.radians(82)),  # 5
    Part.ArcOfCircle(Part.Circle(V(-3.82, 17.2, 0), V(0, 0, 1), 10), math.radians(-114), math.radians(-90)),  # 6
], False)
sketch10.addConstraint([
    Sketcher.Constraint("Coincident", 0, 2, 1, 1),
    Sketcher.Constraint("Coincident", 1, 2, 2, 1),
    Sketcher.Constraint("Coincident", 2, 2, 3, 1),
    Sketcher.Constraint("Coincident", 3, 2, 4, 1),
    Sketcher.Constraint("Tangent", 4, 2, 5, 2),
    Sketcher.Constraint("Tangent", 5, 1, 6, 1),
    Sketcher.Constraint("Coincident", 6, 2, 0, 1),
    Sketcher.Constraint("Vertical", 0),
    Sketcher.Constraint("Horizontal", 1),
    Sketcher.Constraint("Vertical", 2),
    Sketcher.Constraint("Horizontal", 3),
    Sketcher.Constraint("Vertical", 6, 3, 0, 2),
    Sketcher.Constraint("Radius", 5, 5.0),
    Sketcher.Constraint("Radius", 6, 10.0),
    Sketcher.Constraint("Angle", 4, Q("-8 deg")),
    Sketcher.Constraint("DistanceY", 0, 1, 0, 2, 1.6),
    Sketcher.Constraint("DistanceX", 3, 1, 3, 2, 0.46),
    Sketcher.Constraint("DistanceY", -1, 1, 6, 3, 17.2),
    Sketcher.Constraint("Distance", 4, 1.92),
    Sketcher.Constraint("DistanceX", 1, 2, 1, 1, 7.817),
    Sketcher.Constraint("DistanceX", 6, 3, -1, 1, 3.821),
])
sketch10.setExpression("Constraints[12]", "Params.sketch10_radius")
sketch10.setExpression("Constraints[13]", "Params.sketch10_radius2")
sketch10.setExpression("Constraints[15]", "Params.sketch10_height")
sketch10.setExpression("Constraints[16]", "Params.sketch10_width")
sketch10.setExpression("Constraints[18]", "Params.sketch10_length")
pocket6 = body.newObject("PartDesign::Pocket", "Pocket005")
pocket6.Profile = sketch10
pocket6.setExpression("Length", "Params.pocket6_length")
pocket6.Midplane = True

# Sketch on XY plane
sketch11 = body.newObject("Sketcher::SketchObject", "Sketch010")
sketch11.AttachmentSupport = (doc.getObject("XY_Plane"), [""])
sketch11.MapMode = "FlatFace"
sketch11.AttachmentOffset = App.Placement(V(0, 0, 8.5), App.Rotation())
sketch11.addGeometry([
    Part.Circle(V(0, -7.2, 0), V(0, 0, 1), 6),  # 0
    Part.ArcOfCircle(Part.Circle(V(0, -7.2, 0), V(0, 0, 1), 5), math.radians(150), math.radians(390)),  # 1
    Part.ArcOfCircle(Part.Circle(V(-2.6, -5.8, 0), V(0, 0, 1), 2), math.radians(90), math.radians(150)),  # 2
    Part.LineSegment(V(-2.6, -3.8, 0), V(2.6, -3.8, 0)),  # 3
    Part.ArcOfCircle(Part.Circle(V(2.6, -5.8, 0), V(0, 0, 1), 2), math.radians(30), math.radians(90)),  # 4
], False)
sketch11.addConstraint([
    Sketcher.Constraint("Tangent", 1, 1, 2, 2),
    Sketcher.Constraint("Tangent", 2, 1, 3, 1),
    Sketcher.Constraint("Tangent", 3, 2, 4, 2),
    Sketcher.Constraint("Tangent", 4, 1, 1, 2),
    Sketcher.Constraint("Horizontal", 3),
    Sketcher.Constraint("Coincident", 1, 3, 0, 3),
    Sketcher.Constraint("Equal", 2, 4),
    Sketcher.Constraint("PointOnObject", 0, 3, -2),
    Sketcher.Constraint("Diameter", 0, 12.0),
    Sketcher.Constraint("Radius", 1, 5.0),
    Sketcher.Constraint("Radius", 2, 2.0),
    Sketcher.Constraint("DistanceY", 2, 3, 1, 1, 1.0),
    Sketcher.Constraint("DistanceY", 0, 3, -1, 1, 7.25),
])
sketch11.setExpression("Constraints[8]", "Params.sketch11_diameter")
sketch11.setExpression("Constraints[9]", "Params.sketch11_radius")
sketch11.setExpression("Constraints[10]", "Params.sketch11_radius2")
pad5 = body.newObject("PartDesign::Pad", "Pad004")
pad5.Profile = sketch11
pad5.setExpression("Length", "Params.pad5_length")

# Sketch on XY plane
sketch12 = body.newObject("Sketcher::SketchObject", "Sketch011")
sketch12.AttachmentSupport = (doc.getObject("XY_Plane"), [""])
sketch12.MapMode = "FlatFace"
sketch12.AttachmentOffset = App.Placement(V(0, 0, 7.2), App.Rotation())
sketch12.addGeometry([
    Part.ArcOfCircle(Part.Circle(V(-1.7, -6.2, 0), V(0, 0, 1), 1), math.radians(90), math.radians(143)),  # 0
    Part.ArcOfCircle(Part.Circle(V(0, -7.5, 0), V(0, 0, 1), 3.1), math.radians(143), math.radians(217)),  # 1
    Part.ArcOfCircle(Part.Circle(V(-1.7, -8.7, 0), V(0, 0, 1), 1), math.radians(-143), math.radians(-90)),  # 2
    Part.LineSegment(V(-1.7, -9.7, 0), V(1.7, -9.7, 0)),  # 3
    Part.ArcOfCircle(Part.Circle(V(1.7, -8.7, 0), V(0, 0, 1), 1), math.radians(-90), math.radians(-37)),  # 4
    Part.ArcOfCircle(Part.Circle(V(0, -7.5, 0), V(0, 0, 1), 3.1), math.radians(-37), math.radians(37)),  # 5
    Part.ArcOfCircle(Part.Circle(V(1.7, -6.2, 0), V(0, 0, 1), 1), math.radians(37), math.radians(90)),  # 6
    Part.LineSegment(V(1.7, -5.2, 0), V(-1.7, -5.2, 0)),  # 7
], False)
sketch12.addConstraint([
    Sketcher.Constraint("Tangent", 0, 2, 1, 1),
    Sketcher.Constraint("Tangent", 1, 2, 2, 1),
    Sketcher.Constraint("Tangent", 2, 2, 3, 1),
    Sketcher.Constraint("Tangent", 3, 2, 4, 1),
    Sketcher.Constraint("Tangent", 4, 2, 5, 1),
    Sketcher.Constraint("Tangent", 5, 2, 6, 1),
    Sketcher.Constraint("Tangent", 6, 2, 7, 1),
    Sketcher.Constraint("Tangent", 7, 2, 0, 1),
    Sketcher.Constraint("Horizontal", 3),
    Sketcher.Constraint("Horizontal", 7),
    Sketcher.Constraint("Coincident", 5, 3, 1, 3),
    Sketcher.Constraint("Equal", 0, 2),
    Sketcher.Constraint("Equal", 2, 4),
    Sketcher.Constraint("Equal", 1, 5),
    Sketcher.Constraint("Equal", 4, 6),
    Sketcher.Constraint("PointOnObject", 1, 3, -2),
    Sketcher.Constraint("Vertical", 0, 3, 2, 3),
    Sketcher.Constraint("Radius", 0, 1.0),
    Sketcher.Constraint("Radius", 1, 3.1),
    Sketcher.Constraint("DistanceY", 2, 3, 0, 3, 2.5),
    Sketcher.Constraint("DistanceY", 0, 3, -1, 1, 6.215),
])
sketch12.setExpression("Constraints[17]", "Params.sketch12_radius")
sketch12.setExpression("Constraints[18]", "Params.sketch12_radius2")
pocket7 = body.newObject("PartDesign::Pocket", "Pocket006")
pocket7.Profile = sketch12
pocket7.setExpression("Length", "Params.pocket7_length")
pocket7.Reversed = True

doc.recompute()
